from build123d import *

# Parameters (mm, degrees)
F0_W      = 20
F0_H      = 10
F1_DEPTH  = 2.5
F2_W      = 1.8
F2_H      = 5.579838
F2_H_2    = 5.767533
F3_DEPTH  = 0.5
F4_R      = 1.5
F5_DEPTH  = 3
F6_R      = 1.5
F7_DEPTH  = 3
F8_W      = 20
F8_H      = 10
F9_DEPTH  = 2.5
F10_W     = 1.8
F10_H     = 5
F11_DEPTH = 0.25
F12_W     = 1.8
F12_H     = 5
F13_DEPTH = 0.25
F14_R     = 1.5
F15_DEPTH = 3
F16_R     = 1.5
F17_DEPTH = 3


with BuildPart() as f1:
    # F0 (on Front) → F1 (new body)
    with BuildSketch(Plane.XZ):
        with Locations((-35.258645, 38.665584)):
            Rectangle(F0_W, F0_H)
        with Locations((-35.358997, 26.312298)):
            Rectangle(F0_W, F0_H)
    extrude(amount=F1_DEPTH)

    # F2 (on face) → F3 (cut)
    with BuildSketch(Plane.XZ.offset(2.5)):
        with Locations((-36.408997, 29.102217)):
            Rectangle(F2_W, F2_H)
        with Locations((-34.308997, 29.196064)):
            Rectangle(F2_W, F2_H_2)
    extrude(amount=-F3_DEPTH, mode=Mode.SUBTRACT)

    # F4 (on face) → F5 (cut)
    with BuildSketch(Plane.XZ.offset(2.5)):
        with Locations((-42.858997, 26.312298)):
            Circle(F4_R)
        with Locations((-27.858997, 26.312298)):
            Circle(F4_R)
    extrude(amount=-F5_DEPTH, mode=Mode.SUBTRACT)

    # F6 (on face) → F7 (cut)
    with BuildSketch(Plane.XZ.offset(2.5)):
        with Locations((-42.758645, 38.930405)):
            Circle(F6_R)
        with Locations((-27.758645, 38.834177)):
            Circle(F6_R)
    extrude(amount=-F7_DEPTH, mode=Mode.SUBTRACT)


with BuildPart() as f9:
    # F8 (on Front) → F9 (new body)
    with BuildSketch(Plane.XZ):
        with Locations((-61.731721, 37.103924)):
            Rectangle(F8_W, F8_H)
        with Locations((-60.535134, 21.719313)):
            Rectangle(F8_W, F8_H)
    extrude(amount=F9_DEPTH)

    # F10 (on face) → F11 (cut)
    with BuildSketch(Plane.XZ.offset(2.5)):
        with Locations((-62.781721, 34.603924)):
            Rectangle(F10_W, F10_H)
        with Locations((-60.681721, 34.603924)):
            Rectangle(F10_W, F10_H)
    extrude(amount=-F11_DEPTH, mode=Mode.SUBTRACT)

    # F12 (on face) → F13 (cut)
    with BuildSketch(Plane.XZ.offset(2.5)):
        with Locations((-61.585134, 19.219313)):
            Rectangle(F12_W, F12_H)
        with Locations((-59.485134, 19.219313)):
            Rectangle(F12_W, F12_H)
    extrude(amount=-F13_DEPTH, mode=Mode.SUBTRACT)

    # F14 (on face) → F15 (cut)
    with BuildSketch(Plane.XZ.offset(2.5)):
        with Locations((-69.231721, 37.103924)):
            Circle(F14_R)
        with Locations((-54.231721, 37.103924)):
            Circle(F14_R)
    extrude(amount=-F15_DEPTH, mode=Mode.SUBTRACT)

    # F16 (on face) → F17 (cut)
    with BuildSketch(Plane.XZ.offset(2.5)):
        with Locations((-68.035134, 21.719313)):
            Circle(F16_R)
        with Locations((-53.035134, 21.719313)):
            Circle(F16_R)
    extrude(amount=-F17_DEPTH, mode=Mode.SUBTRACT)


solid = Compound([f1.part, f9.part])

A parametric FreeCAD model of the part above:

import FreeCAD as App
import Part
import Sketcher
from FreeCAD import Vector
Q = App.Units.Quantity


def add_polygon(sketch, points):
    """Adds a closed chain of lines whose ends are joined by coincident constraints."""
    first, n = sketch.GeometryCount, len(points)
    for a, b in zip(points, points[1:] + points[:1]):
        sketch.addGeometry(Part.LineSegment(App.Vector(*a, 0), App.Vector(*b, 0)), False)
    for i in range(n):
        sketch.addConstraint(Sketcher.Constraint("Coincident", first + i, 2, first + (i + 1) % n, 1))

doc = App.newDocument("Part")
params = doc.addObject("Spreadsheet::Sheet", "Params")
for row, (alias, value) in enumerate([
    ("sketch1_width", "20 mm"),
    ("sketch1_height", "10 mm"),
    ("pad1_length", "2.5 mm"),
    ("sketch2_width", "1.8 mm"),
    ("pocket1_length", "0.5 mm"),
    ("sketch3_diameter", "3 mm"),
    ("pocket2_length", "3 mm"),
    ("sketch4_diameter", "3 mm"),
    ("pocket3_length", "3 mm"),
    ("sketch5_width", "20 mm"),
    ("sketch5_height", "10 mm"),
    ("pad2_length", "2.5 mm"),
    ("sketch6_height", "5 mm"),
    ("sketch6_width", "1.8 mm"),
    ("pocket4_length", "0.25 mm"),
    ("sketch7_height", "5 mm"),
    ("sketch7_width", "1.8 mm"),
    ("pocket5_length", "0.25 mm"),
    ("sketch8_diameter", "3 mm"),
    ("pocket6_length", "3 mm"),
    ("sketch9_diameter", "3 mm"),
    ("pocket7_length", "3 mm"),
], start=1):
    params.set(f"A{row}", alias)
    params.set(f"B{row}", "=" + value)
    params.setAlias(f"B{row}", alias)

body = doc.addObject("PartDesign::Body", "Body")
body.AllowCompound = True

sketch1 = body.newObject("Sketcher::SketchObject", "Sketch")
sketch1.AttachmentSupport = (doc.getObject("XZ_Plane"), [""])
sketch1.MapMode = "FlatFace"
add_polygon(sketch1, [(-45, 44), (-45, 34), (-25, 34), (-25, 44)])
add_polygon(sketch1, [(-45, 31), (-45, 21), (-25, 21), (-25, 31)])
sketch1.addConstraint(Sketcher.Constraint("Vertical", 0))
sketch1.addConstraint(Sketcher.Constraint("Horizontal", 1))
sketch1.addConstraint(Sketcher.Constraint("Vertical", 2))
sketch1.addConstraint(Sketcher.Constraint("Horizontal", 3))
sketch1.addConstraint(Sketcher.Constraint("Vertical", 4))
sketch1.addConstraint(Sketcher.Constraint("Horizontal", 5))
sketch1.addConstraint(Sketcher.Constraint("Vertical", 6))
sketch1.addConstraint(Sketcher.Constraint("Horizontal", 7))
sketch1.addConstraint(Sketcher.Constraint("Equal", 3, 5))
sketch1.addConstraint(Sketcher.Constraint("Equal", 2, 4))
sketch1.addConstraint(Sketcher.Constraint("DistanceX", 1, 1, 1, 2, Q("20 mm")))
sketch1.addConstraint(Sketcher.Constraint("DistanceY", 0, 2, 0, 1, Q("10 mm")))
sketch1.addConstraint(Sketcher.Constraint("DistanceX", 5, 2, 1, 2, Q("0.100352 mm")))
sketch1.addConstraint(Sketcher.Constraint("DistanceX", 0, 2, -1, 1, Q("45.258645 mm")))
sketch1.addConstraint(Sketcher.Constraint("DistanceY", -1, 1, 0, 2, Q("33.665584 mm")))
sketch1.addConstraint(Sketcher.Constraint("DistanceY", -1, 1, 4, 2, Q("21.312298 mm")))
sketch1.setExpression("Constraints[18]", "Params.sketch1_width")
sketch1.setExpression("Constraints[19]", "Params.sketch1_height")
pad1 = body.newObject("PartDesign::Pad", "Pad")
pad1.Profile = sketch1
pad1.setExpression("Length", "Params.pad1_length")

sketch2 = body.newObject("Sketcher::SketchObject", "Sketch001")
sketch2.AttachmentSupport = (doc.getObject("XZ_Plane"), [""])
sketch2.MapMode = "FlatFace"
sketch2.AttachmentOffset = App.Placement(Vector(0, 0, 2.5), App.Rotation())
add_polygon(sketch2, [(-37.3, 31.9), (-37.3, 26.3), (-35.5, 26.3), (-35.5, 31.9)])
add_polygon(sketch2, [(-35.2, 32.1), (-35.2, 26.3), (-33.4, 26.3), (-33.4, 32.1)])
sketch2.addConstraint(Sketcher.Constraint("Vertical", 0))
sketch2.addConstraint(Sketcher.Constraint("Horizontal", 1))
sketch2.addConstraint(Sketcher.Constraint("Vertical", 2))
sketch2.addConstraint(Sketcher.Constraint("Horizontal", 3))
sketch2.addConstraint(Sketcher.Constraint("Vertical", 4))
sketch2.addConstraint(Sketcher.Constraint("Horizontal", 5))
sketch2.addConstraint(Sketcher.Constraint("Vertical", 6))
sketch2.addConstraint(Sketcher.Constraint("Horizontal", 7))
sketch2.addConstraint(Sketcher.Constraint("Horizontal", 1, 2, 4, 2))
sketch2.addConstraint(Sketcher.Constraint("Equal", 3, 5))
sketch2.addConstraint(Sketcher.Constraint("DistanceX", 1, 1, 1, 2, Q("1.8 mm")))
sketch2.addConstraint(Sketcher.Constraint("DistanceX", 1, 2, 4, 2, Q("0.3 mm")))
sketch2.addConstraint(Sketcher.Constraint("DistanceY", 0, 2, 0, 1, Q("5.579838 mm")))
sketch2.addConstraint(Sketcher.Constraint("DistanceY", 4, 2, 4, 1, Q("5.767533 mm")))
sketch2.addConstraint(Sketcher.Constraint("DistanceY", -1, 1, 6, 2, Q("32.07983 mm")))
sketch2.addConstraint(Sketcher.Constraint("DistanceX", 0, 2, -1, 1, Q("37.308997 mm")))
sketch2.setExpression("Constraints[18]", "Params.sketch2_width")
pocket1 = body.newObject("PartDesign::Pocket", "Pocket")
pocket1.Profile = sketch2
pocket1.setExpression("Length", "Params.pocket1_length")

sketch3 = body.newObject("Sketcher::SketchObject", "Sketch002")
sketch3.AttachmentSupport = (doc.getObject("XZ_Plane"), [""])
sketch3.MapMode = "FlatFace"
sketch3.AttachmentOffset = App.Placement(Vector(0, 0, 2.5), App.Rotation())
sketch3.addGeometry(Part.Circle(Vector(-42.9, 26.3, 0), Vector(0, 0, 1), 1.5), False)
sketch3.addGeometry(Part.Circle(Vector(-27.9, 26.3, 0), Vector(0, 0, 1), 1.5), False)
sketch3.addConstraint(Sketcher.Constraint("Equal", 0, 1))
sketch3.addConstraint(Sketcher.Constraint("Horizontal", 0, 3, 1, 3))
sketch3.addConstraint(Sketcher.Constraint("Diameter", 0, Q("3 mm")))
sketch3.addConstraint(Sketcher.Constraint("DistanceX", 0, 3, 1, 3, Q("15 mm")))
sketch3.addConstraint(Sketcher.Constraint("DistanceX", 0, 3, -1, 1, Q("42.858997 mm")))
sketch3.addConstraint(Sketcher.Constraint("DistanceY", -1, 1, 0, 3, Q("26.312298 mm")))
sketch3.setExpression("Constraints[2]", "Params.sketch3_diameter")
pocket2 = body.newObject("PartDesign::Pocket", "Pocket001")
pocket2.Profile = sketch3
pocket2.setExpression("Length", "Params.pocket2_length")

sketch4 = body.newObject("Sketcher::SketchObject", "Sketch003")
sketch4.AttachmentSupport = (doc.getObject("XZ_Plane"), [""])
sketch4.MapMode = "FlatFace"
sketch4.AttachmentOffset = App.Placement(Vector(0, 0, 2.5), App.Rotation())
sketch4.addGeometry(Part.Circle(Vector(-42.8, 38.9, 0), Vector(0, 0, 1), 1.5), False)
sketch4.addGeometry(Part.Circle(Vector(-27.8, 38.8, 0), Vector(0, 0, 1), 1.5), False)
sketch4.addConstraint(Sketcher.Constraint("Equal", 0, 1))
sketch4.addConstraint(Sketcher.Constraint("Diameter", 0, Q("3 mm")))
sketch4.addConstraint(Sketcher.Constraint("DistanceX", 0, 3, 1, 3, Q("15 mm")))
sketch4.addConstraint(Sketcher.Constraint("DistanceY", 1, 3, 0, 3, Q("0.096228 mm")))
sketch4.addConstraint(Sketcher.Constraint("DistanceX", 0, 3, -1, 1, Q("42.758645 mm")))
sketch4.addConstraint(Sketcher.Constraint("DistanceY", -1, 1, 0, 3, Q("38.930405 mm")))
sketch4.setExpression("Constraints[1]", "Params.sketch4_diameter")
pocket3 = body.newObject("PartDesign::Pocket", "Pocket002")
pocket3.Profile = sketch4
pocket3.setExpression("Length", "Params.pocket3_length")
body2 = doc.addObject("PartDesign::Body", "Body001")
body2.AllowCompound = True

sketch5 = body2.newObject("Sketcher::SketchObject", "Sketch004")
sketch5.AttachmentSupport = (doc.getObject("XZ_Plane001"), [""])
sketch5.MapMode = "FlatFace"
add_polygon(sketch5, [(-72, 42), (-72, 32), (-52, 32), (-52, 42)])
add_polygon(sketch5, [(-71, 27), (-71, 17), (-51, 17), (-51, 27)])
sketch5.addConstraint(Sketcher.Constraint("Vertical", 0))
sketch5.addConstraint(Sketcher.Constraint("Horizontal", 1))
sketch5.addConstraint(Sketcher.Constraint("Vertical", 2))
sketch5.addConstraint(Sketcher.Constraint("Horizontal", 3))
sketch5.addConstraint(Sketcher.Constraint("Vertical", 4))
sketch5.addConstraint(Sketcher.Constraint("Horizontal", 5))
sketch5.addConstraint(Sketcher.Constraint("Vertical", 6))
sketch5.addConstraint(Sketcher.Constraint("Horizontal", 7))
sketch5.addConstraint(Sketcher.Constraint("Equal", 3, 5))
sketch5.addConstraint(Sketcher.Constraint("Equal", 2, 4))
sketch5.addConstraint(Sketcher.Constraint("DistanceX", 1, 1, 1, 2, Q("20 mm")))
sketch5.addConstraint(Sketcher.Constraint("DistanceY", 0, 2, 0, 1, Q("10 mm")))
sketch5.addConstraint(Sketcher.Constraint("DistanceX", 0, 2, -1, 1, Q("71.731721 mm")))
sketch5.addConstraint(Sketcher.Constraint("DistanceY", 4, 2, 0, 2, Q("15.384611 mm")))
sketch5.addConstraint(Sketcher.Constraint("DistanceY", -1, 1, 0, 2, Q("32.103924 mm")))
sketch5.addConstraint(Sketcher.Constraint("DistanceX", 4, 2, -1, 1, Q("70.535134 mm")))
sketch5.setExpression("Constraints[18]", "Params.sketch5_width")
sketch5.setExpression("Constraints[19]", "Params.sketch5_height")
pad2 = body2.newObject("PartDesign::Pad", "Pad001")
pad2.Profile = sketch5
pad2.setExpression("Length", "Params.pad2_length")

sketch6 = body2.newObject("Sketcher::SketchObject", "Sketch005")
sketch6.AttachmentSupport = (doc.getObject("XZ_Plane001"), [""])
sketch6.MapMode = "FlatFace"
sketch6.AttachmentOffset = App.Placement(Vector(0, 0, 2.5), App.Rotation())
add_polygon(sketch6, [(-63.7, 37.1), (-63.7, 32.1), (-61.9, 32.1), (-61.9, 37.1)])
add_polygon(sketch6, [(-61.6, 37.1), (-61.6, 32.1), (-59.8, 32.1), (-59.8, 37.1)])
sketch6.addConstraint(Sketcher.Constraint("Vertical", 0))
sketch6.addConstraint(Sketcher.Constraint("Horizontal", 1))
sketch6.addConstraint(Sketcher.Constraint("Vertical", 2))
sketch6.addConstraint(Sketcher.Constraint("Horizontal", 3))
sketch6.addConstraint(Sketcher.Constraint("Vertical", 4))
sketch6.addConstraint(Sketcher.Constraint("Horizontal", 5))
sketch6.addConstraint(Sketcher.Constraint("Vertical", 6))
sketch6.addConstraint(Sketcher.Constraint("Horizontal", 7))
sketch6.addConstraint(Sketcher.Constraint("Horizontal", 1, 2, 4, 2))
sketch6.addConstraint(Sketcher.Constraint("Horizontal", 3, 2, 6, 2))
sketch6.addConstraint(Sketcher.Constraint("Equal", 3, 5))
sketch6.addConstraint(Sketcher.Constraint("DistanceY", 0, 2, 0, 1, Q("5 mm")))
sketch6.addConstraint(Sketcher.Constraint("DistanceX", 1, 1, 1, 2, Q("1.8 mm")))
sketch6.addConstraint(Sketcher.Constraint("DistanceX", 1, 2, 4, 2, Q("0.3 mm")))
sketch6.addConstraint(Sketcher.Constraint("DistanceX", 0, 2, -1, 1, Q("63.681721 mm")))
sketch6.addConstraint(Sketcher.Constraint("DistanceY", -1, 1, 0, 2, Q("32.103924 mm")))
sketch6.setExpression("Constraints[19]", "Params.sketch6_height")
sketch6.setExpression("Constraints[20]", "Params.sketch6_width")
pocket4 = body2.newObject("PartDesign::Pocket", "Pocket003")
pocket4.Profile = sketch6
pocket4.setExpression("Length", "Params.pocket4_length")

sketch7 = body2.newObject("Sketcher::SketchObject", "Sketch006")
sketch7.AttachmentSupport = (doc.getObject("XZ_Plane001"), [""])
sketch7.MapMode = "FlatFace"
sketch7.AttachmentOffset = App.Placement(Vector(0, 0, 2.5), App.Rotation())
add_polygon(sketch7, [(-62.5, 21.7), (-62.5, 16.7), (-60.7, 16.7), (-60.7, 21.7)])
add_polygon(sketch7, [(-60.4, 21.7), (-60.4, 16.7), (-58.6, 16.7), (-58.6, 21.7)])
sketch7.addConstraint(Sketcher.Constraint("Vertical", 0))
sketch7.addConstraint(Sketcher.Constraint("Horizontal", 1))
sketch7.addConstraint(Sketcher.Constraint("Vertical", 2))
sketch7.addConstraint(Sketcher.Constraint("Horizontal", 3))
sketch7.addConstraint(Sketcher.Constraint("Vertical", 4))
sketch7.addConstraint(Sketcher.Constraint("Horizontal", 5))
sketch7.addConstraint(Sketcher.Constraint("Vertical", 6))
sketch7.addConstraint(Sketcher.Constraint("Horizontal", 7))
sketch7.addConstraint(Sketcher.Constraint("Horizontal", 1, 2, 4, 2))
sketch7.addConstraint(Sketcher.Constraint("Horizontal", 3, 2, 6, 2))
sketch7.addConstraint(Sketcher.Constraint("Equal", 3, 5))
sketch7.addConstraint(Sketcher.Constraint("DistanceY", 0, 2, 0, 1, Q("5 mm")))
sketch7.addConstraint(Sketcher.Constraint("DistanceX", 1, 1, 1, 2, Q("1.8 mm")))
sketch7.addConstraint(Sketcher.Constraint("DistanceX", 1, 2, 4, 2, Q("0.3 mm")))
sketch7.addConstraint(Sketcher.Constraint("DistanceX", 0, 2, -1, 1, Q("62.485134 mm")))
sketch7.addConstraint(Sketcher.Constraint("DistanceY", -1, 1, 0, 2, Q("16.719313 mm")))
sketch7.setExpression("Constraints[19]", "Params.sketch7_height")
sketch7.setExpression("Constraints[20]", "Params.sketch7_width")
pocket5 = body2.newObject("PartDesign::Pocket", "Pocket004")
pocket5.Profile = sketch7
pocket5.setExpression("Length", "Params.pocket5_length")

sketch8 = body2.newObject("Sketcher::SketchObject", "Sketch007")
sketch8.AttachmentSupport = (doc.getObject("XZ_Plane001"), [""])
sketch8.MapMode = "FlatFace"
sketch8.AttachmentOffset = App.Placement(Vector(0, 0, 2.5), App.Rotation())
sketch8.addGeometry(Part.Circle(Vector(-69.2, 37.1, 0), Vector(0, 0, 1), 1.5), False)
sketch8.addGeometry(Part.Circle(Vector(-54.2, 37.1, 0), Vector(0, 0, 1), 1.5), False)
sketch8.addConstraint(Sketcher.Constraint("Equal", 0, 1))
sketch8.addConstraint(Sketcher.Constraint("Horizontal", 0, 3, 1, 3))
sketch8.addConstraint(Sketcher.Constraint("Diameter", 0, Q("3 mm")))
sketch8.addConstraint(Sketcher.Constraint("DistanceX", 0, 3, 1, 3, Q("15 mm")))
sketch8.addConstraint(Sketcher.Constraint("DistanceX", 0, 3, -1, 1, Q("69.231721 mm")))
sketch8.addConstraint(Sketcher.Constraint("DistanceY", -1, 1, 0, 3, Q("37.103924 mm")))
sketch8.setExpression("Constraints[2]", "Params.sketch8_diameter")
pocket6 = body2.newObject("PartDesign::Pocket", "Pocket005")
pocket6.Profile = sketch8
pocket6.setExpression("Length", "Params.pocket6_length")

sketch9 = body2.newObject("Sketcher::SketchObject", "Sketch008")
sketch9.AttachmentSupport = (doc.getObject("XZ_Plane001"), [""])
sketch9.MapMode = "FlatFace"
sketch9.AttachmentOffset = App.Placement(Vector(0, 0, 2.5), App.Rotation())
sketch9.addGeometry(Part.Circle(Vector(-68, 21.7, 0), Vector(0, 0, 1), 1.5), False)
sketch9.addGeometry(Part.Circle(Vector(-53, 21.7, 0), Vector(0, 0, 1), 1.5), False)
sketch9.addConstraint(Sketcher.Constraint("Equal", 0, 1))
sketch9.addConstraint(Sketcher.Constraint("Horizontal", 0, 3, 1, 3))
sketch9.addConstraint(Sketcher.Constraint("Diameter", 0, Q("3 mm")))
sketch9.addConstraint(Sketcher.Constraint("DistanceX", 0, 3, 1, 3, Q("15 mm")))
sketch9.addConstraint(Sketcher.Constraint("DistanceX", 0, 3, -1, 1, Q("68.035134 mm")))
sketch9.addConstraint(Sketcher.Constraint("DistanceY", -1, 1, 0, 3, Q("21.719313 mm")))
sketch9.setExpression("Constraints[2]", "Params.sketch9_diameter")
pocket7 = body2.newObject("PartDesign::Pocket", "Pocket006")
pocket7.Profile = sketch9
pocket7.setExpression("Length", "Params.pocket7_length")

doc.recompute()
